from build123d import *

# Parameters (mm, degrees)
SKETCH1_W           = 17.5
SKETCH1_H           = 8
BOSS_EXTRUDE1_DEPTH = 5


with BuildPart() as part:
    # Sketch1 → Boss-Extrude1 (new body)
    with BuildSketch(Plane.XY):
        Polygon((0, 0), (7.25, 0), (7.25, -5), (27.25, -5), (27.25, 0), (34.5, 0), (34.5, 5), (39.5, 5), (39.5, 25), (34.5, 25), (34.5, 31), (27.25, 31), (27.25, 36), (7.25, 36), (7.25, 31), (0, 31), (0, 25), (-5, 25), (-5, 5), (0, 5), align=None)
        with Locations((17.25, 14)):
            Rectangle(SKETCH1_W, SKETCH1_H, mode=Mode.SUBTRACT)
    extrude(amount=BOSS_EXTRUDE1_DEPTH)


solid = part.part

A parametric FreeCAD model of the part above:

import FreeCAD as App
import Part
import Sketcher
Q = App.Units.Quantity

doc = App.newDocument("Part")
body = doc.addObject("PartDesign::Body", "Body")

sketch1 = body.newObject("Sketcher::SketchObject", "Sketch")
sketch1.AttachmentSupport = (doc.getObject("XY_Plane"), [""])
sketch1.MapMode = "FlatFace"
sketch1.addGeometry([
    Part.LineSegment(App.Vector(0, 0, 0), App.Vector(7, 0, 0)),
    Part.LineSegment(App.Vector(7, 0, 0), App.Vector(7, -5, 0)),
    Part.LineSegment(App.Vector(7, -5, 0), App.Vector(27, -5, 0)),
    Part.LineSegment(App.Vector(27, -5, 0), App.Vector(27, 0, 0)),
    Part.LineSegment(App.Vector(27, 0, 0), App.Vector(34, 0, 0)),
    Part.LineSegment(App.Vector(34, 0, 0), App.Vector(34, 5, 0)),
    Part.LineSegment(App.Vector(34, 5, 0), App.Vector(40, 5, 0)),
    Part.LineSegment(App.Vector(40, 5, 0), App.Vector(40, 25, 0)),
    Part.LineSegment(App.Vector(40, 25, 0), App.Vector(34, 25, 0)),
    Part.LineSegment(App.Vector(34, 25, 0), App.Vector(34, 31, 0)),
    Part.LineSegment(App.Vector(34, 31, 0), App.Vector(27, 31, 0)),
    Part.LineSegment(App.Vector(27, 31, 0), App.Vector(27, 36, 0)),
    Part.LineSegment(App.Vector(27, 36, 0), App.Vector(7, 36, 0)),
    Part.LineSegment(App.Vector(7, 36, 0), App.Vector(7, 31, 0)),
    Part.LineSegment(App.Vector(7, 31, 0), App.Vector(0, 31, 0)),
    Part.LineSegment(App.Vector(0, 31, 0), App.Vector(0, 25, 0)),
    Part.LineSegment(App.Vector(0, 25, 0), App.Vector(-5, 25, 0)),
    Part.LineSegment(App.Vector(-5, 25, 0), App.Vector(-5, 5, 0)),
    Part.LineSegment(App.Vector(-5, 5, 0), App.Vector(0, 5, 0)),
    Part.LineSegment(App.Vector(0, 5, 0), App.Vector(0, 0, 0)),
    Part.LineSegment(App.Vector(26, 10, 0), App.Vector(8, 10, 0)),
    Part.LineSegment(App.Vector(8, 10, 0), App.Vector(8, 18, 0)),
    Part.LineSegment(App.Vector(8, 18, 0), App.Vector(26, 18, 0)),
    Part.LineSegment(App.Vector(26, 18, 0), App.Vector(26, 10, 0)),
], False)
sketch1.addConstraint([
    Sketcher.Constraint("Coincident", 0, 2, 1, 1),
    Sketcher.Constraint("Coincident", 1, 2, 2, 1),
    Sketcher.Constraint("Coincident", 2, 2, 3, 1),
    Sketcher.Constraint("Coincident", 3, 2, 4, 1),
    Sketcher.Constraint("Coincident", 4, 2, 5, 1),
    Sketcher.Constraint("Coincident", 5, 2, 6, 1),
    Sketcher.Constraint("Coincident", 6, 2, 7, 1),
    Sketcher.Constraint("Coincident", 7, 2, 8, 1),
    Sketcher.Constraint("Coincident", 8, 2, 9, 1),
    Sketcher.Constraint("Coincident", 9, 2, 10, 1),
    Sketcher.Constraint("Coincident", 10, 2, 11, 1),
    Sketcher.Constraint("Coincident", 11, 2, 12, 1),
    Sketcher.Constraint("Coincident", 12, 2, 13, 1),
    Sketcher.Constraint("Coincident", 13, 2, 14, 1),
    Sketcher.Constraint("Coincident", 14, 2, 15, 1),
    Sketcher.Constraint("Coincident", 15, 2, 16, 1),
    Sketcher.Constraint("Coincident", 16, 2, 17, 1),
    Sketcher.Constraint("Coincident", 17, 2, 18, 1),
    Sketcher.Constraint("Coincident", 18, 2, 19, 1),
    Sketcher.Constraint("Coincident", 19, 2, 0, 1),
    Sketcher.Constraint("Coincident", 20, 2, 21, 1),
    Sketcher.Constraint("Coincident", 21, 2, 22, 1),
    Sketcher.Constraint("Coincident", 22, 2, 23, 1),
    Sketcher.Constraint("Coincident", 23, 2, 20, 1),
    Sketcher.Constraint("Horizontal", 0),
    Sketcher.Constraint("Vertical", 1),
    Sketcher.Constraint("Horizontal", 2),
    Sketcher.Constraint("Vertical", 3),
    Sketcher.Constraint("Horizontal", 4),
    Sketcher.Constraint("Vertical", 5),
    Sketcher.Constraint("Horizontal", 6),
    Sketcher.Constraint("Vertical", 7),
    Sketcher.Constraint("Horizontal", 8),
    Sketcher.Constraint("Vertical", 9),
    Sketcher.Constraint("Horizontal", 10),
    Sketcher.Constraint("Vertical", 11),
    Sketcher.Constraint("Horizontal", 12),
    Sketcher.Constraint("Vertical", 13),
    Sketcher.Constraint("Horizontal", 14),
    Sketcher.Constraint("Vertical", 15),
    Sketcher.Constraint("Horizontal", 16),
    Sketcher.Constraint("Vertical", 17),
    Sketcher.Constraint("Horizontal", 18),
    Sketcher.Constraint("Vertical", 19),
    Sketcher.Constraint("Horizontal", 20),
    Sketcher.Constraint("Vertical", 21),
    Sketcher.Constraint("Horizontal", 22),
    Sketcher.Constraint("Vertical", 23),
    Sketcher.Constraint("Coincident", 19, 2, -1, 1),
    Sketcher.Constraint("PointOnObject", 3, 2, -1),
    Sketcher.Constraint("PointOnObject", 14, 2, -2),
    Sketcher.Constraint("Horizontal", 10, 2, 13, 2),
    Sketcher.Constraint("Horizontal", 8, 2, 15, 2),
    Sketcher.Constraint("Horizontal", 6, 2, 17, 2),
    Sketcher.Constraint("Vertical", 5, 2, 8, 2),
    Sketcher.Constraint("Vertical", 3, 2, 10, 2),
    Sketcher.Constraint("Vertical", 1, 2, 12, 2),
    Sketcher.Constraint("Equal", 0, 4),
    Sketcher.Constraint("Equal", 8, 16),
    Sketcher.Constraint("Equal", 18, 1),
    Sketcher.Constraint("Equal", 3, 5),
    Sketcher.Constraint("Equal", 12, 7),
    Sketcher.Constraint("Equal", 5, 11),
    Sketcher.Constraint("DistanceX", 2, 1, 2, 2, Q("20 mm")),
    Sketcher.Constraint("DistanceX", 6, 1, 6, 2, Q("5 mm")),
    Sketcher.Constraint("DistanceY", 9, 1, 9, 2, Q("6 mm")),
    Sketcher.Constraint("DistanceY", 21, 1, 21, 2, Q("8 mm")),
    Sketcher.Constraint("DistanceX", 20, 2, 20, 1, Q("17.5 mm")),
    Sketcher.Constraint("DistanceY", -1, 1, 20, 2, Q("10 mm")),
    Sketcher.Constraint("DistanceX", -1, 1, 22, 2, Q("26 mm")),
    Sketcher.Constraint("DistanceX", 0, 1, 0, 2, Q("7.25 mm")),
])
pad1 = body.newObject("PartDesign::Pad", "Pad")
pad1.Profile = sketch1
pad1.Length = 5

doc.recompute()
